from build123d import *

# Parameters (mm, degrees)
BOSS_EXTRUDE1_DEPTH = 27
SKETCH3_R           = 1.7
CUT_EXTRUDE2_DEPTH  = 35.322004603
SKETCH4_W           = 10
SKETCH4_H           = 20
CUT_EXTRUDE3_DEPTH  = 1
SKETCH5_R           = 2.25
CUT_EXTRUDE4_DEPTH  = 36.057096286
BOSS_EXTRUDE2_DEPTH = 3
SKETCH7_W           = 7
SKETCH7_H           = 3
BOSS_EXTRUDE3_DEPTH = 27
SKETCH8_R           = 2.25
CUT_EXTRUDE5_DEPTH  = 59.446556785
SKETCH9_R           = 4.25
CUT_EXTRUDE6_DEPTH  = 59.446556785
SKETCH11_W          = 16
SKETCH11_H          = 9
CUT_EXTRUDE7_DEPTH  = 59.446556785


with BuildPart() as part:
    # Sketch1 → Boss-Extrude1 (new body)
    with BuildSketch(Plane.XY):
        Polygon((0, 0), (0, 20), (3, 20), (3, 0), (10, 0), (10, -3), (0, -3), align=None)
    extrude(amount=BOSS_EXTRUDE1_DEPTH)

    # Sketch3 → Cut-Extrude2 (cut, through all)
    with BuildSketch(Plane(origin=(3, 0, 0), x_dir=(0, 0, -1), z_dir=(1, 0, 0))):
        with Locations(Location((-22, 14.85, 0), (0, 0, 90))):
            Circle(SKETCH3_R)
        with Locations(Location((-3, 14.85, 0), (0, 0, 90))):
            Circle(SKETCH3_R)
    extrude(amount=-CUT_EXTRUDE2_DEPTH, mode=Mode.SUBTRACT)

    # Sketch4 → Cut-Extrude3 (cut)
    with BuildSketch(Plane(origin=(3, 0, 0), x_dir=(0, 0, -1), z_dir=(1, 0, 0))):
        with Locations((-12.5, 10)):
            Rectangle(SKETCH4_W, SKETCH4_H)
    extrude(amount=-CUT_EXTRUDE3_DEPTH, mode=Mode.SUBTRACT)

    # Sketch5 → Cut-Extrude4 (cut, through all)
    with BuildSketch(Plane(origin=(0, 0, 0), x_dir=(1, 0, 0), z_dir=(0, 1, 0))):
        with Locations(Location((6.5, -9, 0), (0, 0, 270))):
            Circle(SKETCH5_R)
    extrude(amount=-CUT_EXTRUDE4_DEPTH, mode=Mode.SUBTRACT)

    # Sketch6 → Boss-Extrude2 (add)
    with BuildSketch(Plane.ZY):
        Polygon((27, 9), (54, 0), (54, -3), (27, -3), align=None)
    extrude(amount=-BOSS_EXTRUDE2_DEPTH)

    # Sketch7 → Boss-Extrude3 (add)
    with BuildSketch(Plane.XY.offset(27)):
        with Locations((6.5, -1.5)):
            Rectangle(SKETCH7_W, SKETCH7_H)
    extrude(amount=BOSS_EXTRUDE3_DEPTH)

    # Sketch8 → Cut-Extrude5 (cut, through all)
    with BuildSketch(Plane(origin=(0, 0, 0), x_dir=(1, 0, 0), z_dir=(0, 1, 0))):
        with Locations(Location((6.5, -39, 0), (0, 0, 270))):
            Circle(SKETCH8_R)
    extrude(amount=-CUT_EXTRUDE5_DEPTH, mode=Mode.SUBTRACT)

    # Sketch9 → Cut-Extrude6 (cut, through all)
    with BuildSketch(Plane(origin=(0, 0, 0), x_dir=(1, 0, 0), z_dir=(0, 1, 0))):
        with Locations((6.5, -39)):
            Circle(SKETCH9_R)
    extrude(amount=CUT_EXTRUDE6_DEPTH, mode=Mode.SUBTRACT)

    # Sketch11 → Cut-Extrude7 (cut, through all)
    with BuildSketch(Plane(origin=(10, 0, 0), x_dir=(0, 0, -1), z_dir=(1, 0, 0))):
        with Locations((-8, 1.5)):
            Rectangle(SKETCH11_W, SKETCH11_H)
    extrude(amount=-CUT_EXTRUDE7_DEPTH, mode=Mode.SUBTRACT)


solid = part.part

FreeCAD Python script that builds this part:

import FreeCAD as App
import Part
import Sketcher


def add_polygon(sketch, points):
    """Adds a closed chain of lines whose ends are joined by coincident constraints."""
    first, n = sketch.GeometryCount, len(points)
    for a, b in zip(points, points[1:] + points[:1]):
        sketch.addGeometry(Part.LineSegment(App.Vector(*a, 0), App.Vector(*b, 0)), False)
    for i in range(n):
        sketch.addConstraint(Sketcher.Constraint("Coincident", first + i, 2, first + (i + 1) % n, 1))

doc = App.newDocument("Part")
body = doc.addObject("PartDesign::Body", "Body")

# Sketch on XY plane
sketch1 = doc.addObject("Sketcher::SketchObject", "Sketch")
body.addObject(sketch1)
sketch1.AttachmentSupport = (doc.XY_Plane, [""])
sketch1.MapMode = "FlatFace"
add_polygon(sketch1, [(0, 20), (0, -3), (10, -3), (10, 0), (3, 0), (3, 20)])  # lines 0-5
sketch1.addConstraint(Sketcher.Constraint("Vertical", 0))
sketch1.addConstraint(Sketcher.Constraint("Horizontal", 1))
sketch1.addConstraint(Sketcher.Constraint("Vertical", 2))
sketch1.addConstraint(Sketcher.Constraint("Horizontal", 3))
sketch1.addConstraint(Sketcher.Constraint("Vertical", 4))
sketch1.addConstraint(Sketcher.Constraint("Horizontal", 5))
sketch1.addConstraint(Sketcher.Constraint("PointOnObject", 0, 2, -2))
sketch1.addConstraint(Sketcher.Constraint("PointOnObject", 2, 2, -1))
sketch1.addConstraint(Sketcher.Constraint("Equal", 5, 2))
sketch1.addConstraint(Sketcher.Constraint("DistanceX", 1, 1, 1, 2, 10.0))
sketch1.addConstraint(Sketcher.Constraint("DistanceX", 3, 2, 3, 1, 7.0))
sketch1.addConstraint(Sketcher.Constraint("DistanceY", 0, 2, 0, 1, 23.0))
pad1 = doc.addObject("PartDesign::Pad", "Pad")
body.addObject(pad1)
pad1.Profile = sketch1
pad1.Length = 27

# Sketch on YZ plane
sketch2 = doc.addObject("Sketcher::SketchObject", "Sketch001")
body.addObject(sketch2)
sketch2.AttachmentSupport = (doc.YZ_Plane, [""])
sketch2.MapMode = "FlatFace"
sketch2.AttachmentOffset = App.Placement(App.Vector(0, 0, 3), App.Rotation())
sketch2.addGeometry(Part.Circle(App.Vector(14.8, 22, 0), App.Vector(0, 0, 1), 1.7), False)
sketch2.addGeometry(Part.Circle(App.Vector(14.8, 3, 0), App.Vector(0, 0, 1), 1.7), False)
sketch2.addConstraint(Sketcher.Constraint("Equal", 0, 1))
sketch2.addConstraint(Sketcher.Constraint("Vertical", 0, 3, 1, 3))
sketch2.addConstraint(Sketcher.Constraint("Diameter", 0, 3.4))
sketch2.addConstraint(Sketcher.Constraint("DistanceY", -1, 1, 0, 3, 22.0))
sketch2.addConstraint(Sketcher.Constraint("DistanceY", -1, 1, 1, 3, 3.0))
sketch2.addConstraint(Sketcher.Constraint("DistanceX", -1, 1, 0, 3, 14.85))
pocket1 = doc.addObject("PartDesign::Pocket", "Pocket")
body.addObject(pocket1)
pocket1.Profile = sketch2
pocket1.Type = "ThroughAll"

# Sketch on YZ plane
sketch3 = doc.addObject("Sketcher::SketchObject", "Sketch002")
body.addObject(sketch3)
sketch3.AttachmentSupport = (doc.YZ_Plane, [""])
sketch3.MapMode = "FlatFace"
sketch3.AttachmentOffset = App.Placement(App.Vector(0, 0, 3), App.Rotation())
add_polygon(sketch3, [(20, 18), (0, 18), (0, 8), (20, 8)])  # lines 0-3
sketch3.addConstraint(Sketcher.Constraint("Horizontal", 0))
sketch3.addConstraint(Sketcher.Constraint("Vertical", 1))
sketch3.addConstraint(Sketcher.Constraint("Horizontal", 2))
sketch3.addConstraint(Sketcher.Constraint("Vertical", 3))
sketch3.addConstraint(Sketcher.Constraint("PointOnObject", 0, 2, -2))
sketch3.addConstraint(Sketcher.Constraint("DistanceX", 0, 2, 0, 1, 20.0))
sketch3.addConstraint(Sketcher.Constraint("DistanceY", 1, 2, 1, 1, 10.0))
sketch3.addConstraint(Sketcher.Constraint("DistanceY", -1, 1, 0, 2, 17.5))
pocket2 = doc.addObject("PartDesign::Pocket", "Pocket001")
body.addObject(pocket2)
pocket2.Profile = sketch3
pocket2.Length = 1

# Sketch on XZ plane
sketch4 = doc.addObject("Sketcher::SketchObject", "Sketch003")
body.addObject(sketch4)
sketch4.AttachmentSupport = (doc.XZ_Plane, [""])
sketch4.MapMode = "FlatFace"
sketch4.addGeometry(Part.Circle(App.Vector(6.5, 9, 0), App.Vector(0, 0, 1), 2.2), False)
sketch4.addConstraint(Sketcher.Constraint("Diameter", 0, 4.5))
sketch4.addConstraint(Sketcher.Constraint("DistanceY", -1, 1, 0, 3, 9.0))
sketch4.addConstraint(Sketcher.Constraint("DistanceX", -1, 1, 0, 3, 6.5))
pocket3 = doc.addObject("PartDesign::Pocket", "Pocket002")
body.addObject(pocket3)
pocket3.Profile = sketch4
pocket3.Type = "ThroughAll"
pocket3.Reversed = True

# Sketch on YZ plane
sketch5 = doc.addObject("Sketcher::SketchObject", "Sketch004")
body.addObject(sketch5)
sketch5.AttachmentSupport = (doc.YZ_Plane, [""])
sketch5.MapMode = "FlatFace"
add_polygon(sketch5, [(0, 54), (9, 27), (-3, 27), (-3, 54)])  # lines 0-3
sketch5.addConstraint(Sketcher.Constraint("Horizontal", 1))
sketch5.addConstraint(Sketcher.Constraint("Vertical", 2))
sketch5.addConstraint(Sketcher.Constraint("Horizontal", 3))
sketch5.addConstraint(Sketcher.Constraint("PointOnObject", 3, 2, -2))
sketch5.addConstraint(Sketcher.Constraint("DistanceX", 1, 2, 1, 1, 12.0))
sketch5.addConstraint(Sketcher.Constraint("DistanceX", 3, 1, 3, 2, 3.0))
sketch5.addConstraint(Sketcher.Constraint("DistanceY", 2, 1, 2, 2, 27.0))
sketch5.addConstraint(Sketcher.Constraint("DistanceY", -1, 1, 0, 2, 27.0))
pad2 = doc.addObject("PartDesign::Pad", "Pad001")
body.addObject(pad2)
pad2.Profile = sketch5
pad2.Length = 3

# Sketch on XY plane
sketch6 = doc.addObject("Sketcher::SketchObject", "Sketch005")
body.addObject(sketch6)
sketch6.AttachmentSupport = (doc.XY_Plane, [""])
sketch6.MapMode = "FlatFace"
sketch6.AttachmentOffset = App.Placement(App.Vector(0, 0, 27), App.Rotation())
add_polygon(sketch6, [(3, 0), (3, -3), (10, -3), (10, 0)])  # lines 0-3
sketch6.addConstraint(Sketcher.Constraint("Vertical", 0))
sketch6.addConstraint(Sketcher.Constraint("Horizontal", 1))
sketch6.addConstraint(Sketcher.Constraint("Vertical", 2))
sketch6.addConstraint(Sketcher.Constraint("Horizontal", 3))
sketch6.addConstraint(Sketcher.Constraint("PointOnObject", 2, 2, -1))
sketch6.addConstraint(Sketcher.Constraint("DistanceX", 1, 1, 1, 2, 7.0))
sketch6.addConstraint(Sketcher.Constraint("DistanceY", 0, 2, 0, 1, 3.0))
sketch6.addConstraint(Sketcher.Constraint("DistanceX", -1, 1, 0, 2, 3.0))
pad3 = doc.addObject("PartDesign::Pad", "Pad002")
body.addObject(pad3)
pad3.Profile = sketch6
pad3.Length = 27

# Sketch on XZ plane
sketch7 = doc.addObject("Sketcher::SketchObject", "Sketch006")
body.addObject(sketch7)
sketch7.AttachmentSupport = (doc.XZ_Plane, [""])
sketch7.MapMode = "FlatFace"
sketch7.addGeometry(Part.Circle(App.Vector(6.5, 39, 0), App.Vector(0, 0, 1), 2.2), False)
sketch7.addConstraint(Sketcher.Constraint("Diameter", 0, 4.5))
sketch7.addConstraint(Sketcher.Constraint("DistanceY", -1, 1, 0, 3, 39.0))
sketch7.addConstraint(Sketcher.Constraint("DistanceX", -1, 1, 0, 3, 6.5))
pocket4 = doc.addObject("PartDesign::Pocket", "Pocket003")
body.addObject(pocket4)
pocket4.Profile = sketch7
pocket4.Type = "ThroughAll"
pocket4.Reversed = True

# Sketch on XZ plane
sketch8 = doc.addObject("Sketcher::SketchObject", "Sketch007")
body.addObject(sketch8)
sketch8.AttachmentSupport = (doc.XZ_Plane, [""])
sketch8.MapMode = "FlatFace"
sketch8.addGeometry(Part.Circle(App.Vector(6.5, 39, 0), App.Vector(0, 0, 1), 4.2), False)
sketch8.addConstraint(Sketcher.Constraint("Diameter", 0, 8.5))
sketch8.addConstraint(Sketcher.Constraint("DistanceY", -1, 1, 0, 3, 39.0))
sketch8.addConstraint(Sketcher.Constraint("DistanceX", -1, 1, 0, 3, 6.5))
pocket5 = doc.addObject("PartDesign::Pocket", "Pocket004")
body.addObject(pocket5)
pocket5.Profile = sketch8
pocket5.Type = "ThroughAll"

# Sketch on YZ plane
sketch9 = doc.addObject("Sketcher::SketchObject", "Sketch008")
body.addObject(sketch9)
sketch9.AttachmentSupport = (doc.YZ_Plane, [""])
sketch9.MapMode = "FlatFace"
sketch9.AttachmentOffset = App.Placement(App.Vector(0, 0, 10), App.Rotation())
add_polygon(sketch9, [(6, 16), (-3, 16), (-3, 0), (6, 0)])  # lines 0-3
sketch9.addConstraint(Sketcher.Constraint("Horizontal", 0))
sketch9.addConstraint(Sketcher.Constraint("Vertical", 1))
sketch9.addConstraint(Sketcher.Constraint("Horizontal", 2))
sketch9.addConstraint(Sketcher.Constraint("Vertical", 3))
sketch9.addConstraint(Sketcher.Constraint("PointOnObject", 1, 2, -1))
sketch9.addConstraint(Sketcher.Constraint("DistanceX", 0, 2, 0, 1, 9.0))
sketch9.addConstraint(Sketcher.Constraint("DistanceY", 1, 2, 1, 1, 16.0))
sketch9.addConstraint(Sketcher.Constraint("DistanceX", 0, 2, -1, 1, 3.0))
pocket6 = doc.addObject("PartDesign::Pocket", "Pocket005")
body.addObject(pocket6)
pocket6.Profile = sketch9
pocket6.Type = "ThroughAll"

doc.recompute()
